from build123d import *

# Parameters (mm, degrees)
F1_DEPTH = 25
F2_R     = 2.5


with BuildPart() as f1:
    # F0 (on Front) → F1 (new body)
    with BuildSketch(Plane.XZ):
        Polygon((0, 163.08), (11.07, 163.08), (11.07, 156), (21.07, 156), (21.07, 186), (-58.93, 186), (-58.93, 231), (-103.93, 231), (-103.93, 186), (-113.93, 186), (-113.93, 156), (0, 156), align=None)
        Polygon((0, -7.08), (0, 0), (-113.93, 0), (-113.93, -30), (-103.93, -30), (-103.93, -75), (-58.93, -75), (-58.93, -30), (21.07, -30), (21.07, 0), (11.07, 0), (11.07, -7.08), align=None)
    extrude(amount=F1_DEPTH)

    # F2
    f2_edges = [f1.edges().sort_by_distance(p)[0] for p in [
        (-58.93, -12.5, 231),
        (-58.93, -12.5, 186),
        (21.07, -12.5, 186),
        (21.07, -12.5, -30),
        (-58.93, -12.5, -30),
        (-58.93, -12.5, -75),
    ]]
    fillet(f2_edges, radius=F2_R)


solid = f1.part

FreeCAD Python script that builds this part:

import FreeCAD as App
import Part
import Sketcher

V = App.Vector
Q = App.Units.Quantity


def edges_at(feature, points):
    """Names of the edges that pass closest to the given points."""
    edges = feature.Shape.Edges
    near = lambda p: min(range(len(edges)), key=lambda i: edges[i].distToShape(Part.Vertex(*p))[0])
    return sorted({f"Edge{near(p) + 1}" for p in points})

doc = App.newDocument("Part")
body = doc.addObject("PartDesign::Body", "Body")
body.AllowCompound = True

sketch1 = body.newObject("Sketcher::SketchObject", "Sketch")
sketch1.AttachmentSupport = (doc.getObject("XZ_Plane"), [""])
sketch1.MapMode = "FlatFace"
sketch1.addGeometry(Part.LineSegment(V(0, 163.08, 0), V(11.07, 163.08, 0)), False)
sketch1.addGeometry(Part.LineSegment(V(11.07, 163.08, 0), V(11.07, 156, 0)), False)
sketch1.addGeometry(Part.LineSegment(V(11.07, 156, 0), V(21.07, 156, 0)), False)
sketch1.addGeometry(Part.LineSegment(V(21.07, 156, 0), V(21.07, 186, 0)), False)
sketch1.addGeometry(Part.LineSegment(V(21.07, 186, 0), V(-58.93, 186, 0)), False)
sketch1.addGeometry(Part.LineSegment(V(-58.93, 186, 0), V(-58.93, 231, 0)), False)
sketch1.addGeometry(Part.LineSegment(V(-58.93, 231, 0), V(-103.93, 231, 0)), False)
sketch1.addGeometry(Part.LineSegment(V(-103.93, 231, 0), V(-103.93, 186, 0)), False)
sketch1.addGeometry(Part.LineSegment(V(-103.93, 186, 0), V(-113.93, 186, 0)), False)
sketch1.addGeometry(Part.LineSegment(V(-113.93, 186, 0), V(-113.93, 156, 0)), False)
sketch1.addGeometry(Part.LineSegment(V(-113.93, 156, 0), V(0, 156, 0)), False)
sketch1.addGeometry(Part.LineSegment(V(0, 156, 0), V(0, 163.08, 0)), False)
sketch1.addGeometry(Part.LineSegment(V(0, -7.08, 0), V(0, 0, 0)), False)
sketch1.addGeometry(Part.LineSegment(V(0, 0, 0), V(-113.93, 0, 0)), False)
sketch1.addGeometry(Part.LineSegment(V(-113.93, 0, 0), V(-113.93, -30, 0)), False)
sketch1.addGeometry(Part.LineSegment(V(-113.93, -30, 0), V(-103.93, -30, 0)), False)
sketch1.addGeometry(Part.LineSegment(V(-103.93, -30, 0), V(-103.93, -75, 0)), False)
sketch1.addGeometry(Part.LineSegment(V(-103.93, -75, 0), V(-58.93, -75, 0)), False)
sketch1.addGeometry(Part.LineSegment(V(-58.93, -75, 0), V(-58.93, -30, 0)), False)
sketch1.addGeometry(Part.LineSegment(V(-58.93, -30, 0), V(21.07, -30, 0)), False)
sketch1.addGeometry(Part.LineSegment(V(21.07, -30, 0), V(21.07, 0, 0)), False)
sketch1.addGeometry(Part.LineSegment(V(21.07, 0, 0), V(11.07, 0, 0)), False)
sketch1.addGeometry(Part.LineSegment(V(11.07, 0, 0), V(11.07, -7.08, 0)), False)
sketch1.addGeometry(Part.LineSegment(V(11.07, -7.08, 0), V(0, -7.08, 0)), False)
sketch1.addConstraint(Sketcher.Constraint("Coincident", 0, 2, 1, 1))
sketch1.addConstraint(Sketcher.Constraint("Coincident", 1, 2, 2, 1))
sketch1.addConstraint(Sketcher.Constraint("Coincident", 2, 2, 3, 1))
sketch1.addConstraint(Sketcher.Constraint("Coincident", 3, 2, 4, 1))
sketch1.addConstraint(Sketcher.Constraint("Coincident", 4, 2, 5, 1))
sketch1.addConstraint(Sketcher.Constraint("Coincident", 5, 2, 6, 1))
sketch1.addConstraint(Sketcher.Constraint("Coincident", 6, 2, 7, 1))
sketch1.addConstraint(Sketcher.Constraint("Coincident", 7, 2, 8, 1))
sketch1.addConstraint(Sketcher.Constraint("Coincident", 8, 2, 9, 1))
sketch1.addConstraint(Sketcher.Constraint("Coincident", 9, 2, 10, 1))
sketch1.addConstraint(Sketcher.Constraint("Coincident", 10, 2, 11, 1))
sketch1.addConstraint(Sketcher.Constraint("Coincident", 11, 2, 0, 1))
sketch1.addConstraint(Sketcher.Constraint("Coincident", 12, 2, 13, 1))
sketch1.addConstraint(Sketcher.Constraint("Coincident", 13, 2, 14, 1))
sketch1.addConstraint(Sketcher.Constraint("Coincident", 14, 2, 15, 1))
sketch1.addConstraint(Sketcher.Constraint("Coincident", 15, 2, 16, 1))
sketch1.addConstraint(Sketcher.Constraint("Coincident", 16, 2, 17, 1))
sketch1.addConstraint(Sketcher.Constraint("Coincident", 17, 2, 18, 1))
sketch1.addConstraint(Sketcher.Constraint("Coincident", 18, 2, 19, 1))
sketch1.addConstraint(Sketcher.Constraint("Coincident", 19, 2, 20, 1))
sketch1.addConstraint(Sketcher.Constraint("Coincident", 20, 2, 21, 1))
sketch1.addConstraint(Sketcher.Constraint("Coincident", 21, 2, 22, 1))
sketch1.addConstraint(Sketcher.Constraint("Coincident", 22, 2, 23, 1))
sketch1.addConstraint(Sketcher.Constraint("Coincident", 23, 2, 12, 1))
sketch1.addConstraint(Sketcher.Constraint("Horizontal", 0))
sketch1.addConstraint(Sketcher.Constraint("Vertical", 1))
sketch1.addConstraint(Sketcher.Constraint("Horizontal", 2))
sketch1.addConstraint(Sketcher.Constraint("Vertical", 3))
sketch1.addConstraint(Sketcher.Constraint("Horizontal", 4))
sketch1.addConstraint(Sketcher.Constraint("Vertical", 5))
sketch1.addConstraint(Sketcher.Constraint("Horizontal", 6))
sketch1.addConstraint(Sketcher.Constraint("Vertical", 7))
sketch1.addConstraint(Sketcher.Constraint("Horizontal", 8))
sketch1.addConstraint(Sketcher.Constraint("Vertical", 9))
sketch1.addConstraint(Sketcher.Constraint("Horizontal", 10))
sketch1.addConstraint(Sketcher.Constraint("Vertical", 11))
sketch1.addConstraint(Sketcher.Constraint("Vertical", 12))
sketch1.addConstraint(Sketcher.Constraint("Horizontal", 13))
sketch1.addConstraint(Sketcher.Constraint("Vertical", 14))
sketch1.addConstraint(Sketcher.Constraint("Horizontal", 15))
sketch1.addConstraint(Sketcher.Constraint("Vertical", 16))
sketch1.addConstraint(Sketcher.Constraint("Horizontal", 17))
sketch1.addConstraint(Sketcher.Constraint("Vertical", 18))
sketch1.addConstraint(Sketcher.Constraint("Horizontal", 19))
sketch1.addConstraint(Sketcher.Constraint("Vertical", 20))
sketch1.addConstraint(Sketcher.Constraint("Horizontal", 21))
sketch1.addConstraint(Sketcher.Constraint("Vertical", 22))
sketch1.addConstraint(Sketcher.Constraint("Horizontal", 23))
sketch1.addConstraint(Sketcher.Constraint("Coincident", 12, 2, -1, 1))
sketch1.addConstraint(Sketcher.Constraint("PointOnObject", 10, 2, -2))
sketch1.addConstraint(Sketcher.Constraint("PointOnObject", 20, 2, -1))
sketch1.addConstraint(Sketcher.Constraint("Horizontal", 4, 2, 7, 2))
sketch1.addConstraint(Sketcher.Constraint("Horizontal", 2, 2, 9, 2))
sketch1.addConstraint(Sketcher.Constraint("Horizontal", 15, 2, 18, 2))
sketch1.addConstraint(Sketcher.Constraint("Vertical", 9, 2, 13, 2))
sketch1.addConstraint(Sketcher.Constraint("Vertical", 7, 2, 15, 2))
sketch1.addConstraint(Sketcher.Constraint("Vertical", 5, 2, 17, 2))
sketch1.addConstraint(Sketcher.Constraint("Vertical", 3, 2, 19, 2))
sketch1.addConstraint(Sketcher.Constraint("Vertical", 1, 2, 21, 2))
sketch1.addConstraint(Sketcher.Constraint("Equal", 2, 8))
sketch1.addConstraint(Sketcher.Constraint("Equal", 17, 5))
sketch1.addConstraint(Sketcher.Constraint("Equal", 11, 12))
sketch1.addConstraint(Sketcher.Constraint("Equal", 9, 14))
sketch1.addConstraint(Sketcher.Constraint("Equal", 7, 16))
sketch1.addConstraint(Sketcher.Constraint("DistanceX", 2, 1, 2, 2, Q("10 mm")))
sketch1.addConstraint(Sketcher.Constraint("DistanceX", 4, 2, 4, 1, Q("80 mm")))
sketch1.addConstraint(Sketcher.Constraint("DistanceX", 6, 2, 6, 1, Q("45 mm")))
sketch1.addConstraint(Sketcher.Constraint("DistanceY", 3, 1, 3, 2, Q("30 mm")))
sketch1.addConstraint(Sketcher.Constraint("DistanceY", -1, 1, 1, 2, Q("156 mm")))
sketch1.addConstraint(Sketcher.Constraint("DistanceX", 0, 1, 0, 2, Q("11.07 mm")))
sketch1.addConstraint(Sketcher.Constraint("DistanceY", 1, 2, 1, 1, Q("7.08 mm")))
pad1 = body.newObject("PartDesign::Pad", "Pad")
pad1.Profile = sketch1
pad1.Length = 25
doc.recompute()

fillet = body.newObject("PartDesign::Fillet", "Fillet")
fillet.Base = (pad1, edges_at(pad1, [
    (-58.93, -12.5, 231),
    (-58.93, -12.5, 186),
    (21.07, -12.5, 186),
    (21.07, -12.5, -30),
    (-58.93, -12.5, -30),
    (-58.93, -12.5, -75),
]))
fillet.Radius = 2.5

doc.recompute()
